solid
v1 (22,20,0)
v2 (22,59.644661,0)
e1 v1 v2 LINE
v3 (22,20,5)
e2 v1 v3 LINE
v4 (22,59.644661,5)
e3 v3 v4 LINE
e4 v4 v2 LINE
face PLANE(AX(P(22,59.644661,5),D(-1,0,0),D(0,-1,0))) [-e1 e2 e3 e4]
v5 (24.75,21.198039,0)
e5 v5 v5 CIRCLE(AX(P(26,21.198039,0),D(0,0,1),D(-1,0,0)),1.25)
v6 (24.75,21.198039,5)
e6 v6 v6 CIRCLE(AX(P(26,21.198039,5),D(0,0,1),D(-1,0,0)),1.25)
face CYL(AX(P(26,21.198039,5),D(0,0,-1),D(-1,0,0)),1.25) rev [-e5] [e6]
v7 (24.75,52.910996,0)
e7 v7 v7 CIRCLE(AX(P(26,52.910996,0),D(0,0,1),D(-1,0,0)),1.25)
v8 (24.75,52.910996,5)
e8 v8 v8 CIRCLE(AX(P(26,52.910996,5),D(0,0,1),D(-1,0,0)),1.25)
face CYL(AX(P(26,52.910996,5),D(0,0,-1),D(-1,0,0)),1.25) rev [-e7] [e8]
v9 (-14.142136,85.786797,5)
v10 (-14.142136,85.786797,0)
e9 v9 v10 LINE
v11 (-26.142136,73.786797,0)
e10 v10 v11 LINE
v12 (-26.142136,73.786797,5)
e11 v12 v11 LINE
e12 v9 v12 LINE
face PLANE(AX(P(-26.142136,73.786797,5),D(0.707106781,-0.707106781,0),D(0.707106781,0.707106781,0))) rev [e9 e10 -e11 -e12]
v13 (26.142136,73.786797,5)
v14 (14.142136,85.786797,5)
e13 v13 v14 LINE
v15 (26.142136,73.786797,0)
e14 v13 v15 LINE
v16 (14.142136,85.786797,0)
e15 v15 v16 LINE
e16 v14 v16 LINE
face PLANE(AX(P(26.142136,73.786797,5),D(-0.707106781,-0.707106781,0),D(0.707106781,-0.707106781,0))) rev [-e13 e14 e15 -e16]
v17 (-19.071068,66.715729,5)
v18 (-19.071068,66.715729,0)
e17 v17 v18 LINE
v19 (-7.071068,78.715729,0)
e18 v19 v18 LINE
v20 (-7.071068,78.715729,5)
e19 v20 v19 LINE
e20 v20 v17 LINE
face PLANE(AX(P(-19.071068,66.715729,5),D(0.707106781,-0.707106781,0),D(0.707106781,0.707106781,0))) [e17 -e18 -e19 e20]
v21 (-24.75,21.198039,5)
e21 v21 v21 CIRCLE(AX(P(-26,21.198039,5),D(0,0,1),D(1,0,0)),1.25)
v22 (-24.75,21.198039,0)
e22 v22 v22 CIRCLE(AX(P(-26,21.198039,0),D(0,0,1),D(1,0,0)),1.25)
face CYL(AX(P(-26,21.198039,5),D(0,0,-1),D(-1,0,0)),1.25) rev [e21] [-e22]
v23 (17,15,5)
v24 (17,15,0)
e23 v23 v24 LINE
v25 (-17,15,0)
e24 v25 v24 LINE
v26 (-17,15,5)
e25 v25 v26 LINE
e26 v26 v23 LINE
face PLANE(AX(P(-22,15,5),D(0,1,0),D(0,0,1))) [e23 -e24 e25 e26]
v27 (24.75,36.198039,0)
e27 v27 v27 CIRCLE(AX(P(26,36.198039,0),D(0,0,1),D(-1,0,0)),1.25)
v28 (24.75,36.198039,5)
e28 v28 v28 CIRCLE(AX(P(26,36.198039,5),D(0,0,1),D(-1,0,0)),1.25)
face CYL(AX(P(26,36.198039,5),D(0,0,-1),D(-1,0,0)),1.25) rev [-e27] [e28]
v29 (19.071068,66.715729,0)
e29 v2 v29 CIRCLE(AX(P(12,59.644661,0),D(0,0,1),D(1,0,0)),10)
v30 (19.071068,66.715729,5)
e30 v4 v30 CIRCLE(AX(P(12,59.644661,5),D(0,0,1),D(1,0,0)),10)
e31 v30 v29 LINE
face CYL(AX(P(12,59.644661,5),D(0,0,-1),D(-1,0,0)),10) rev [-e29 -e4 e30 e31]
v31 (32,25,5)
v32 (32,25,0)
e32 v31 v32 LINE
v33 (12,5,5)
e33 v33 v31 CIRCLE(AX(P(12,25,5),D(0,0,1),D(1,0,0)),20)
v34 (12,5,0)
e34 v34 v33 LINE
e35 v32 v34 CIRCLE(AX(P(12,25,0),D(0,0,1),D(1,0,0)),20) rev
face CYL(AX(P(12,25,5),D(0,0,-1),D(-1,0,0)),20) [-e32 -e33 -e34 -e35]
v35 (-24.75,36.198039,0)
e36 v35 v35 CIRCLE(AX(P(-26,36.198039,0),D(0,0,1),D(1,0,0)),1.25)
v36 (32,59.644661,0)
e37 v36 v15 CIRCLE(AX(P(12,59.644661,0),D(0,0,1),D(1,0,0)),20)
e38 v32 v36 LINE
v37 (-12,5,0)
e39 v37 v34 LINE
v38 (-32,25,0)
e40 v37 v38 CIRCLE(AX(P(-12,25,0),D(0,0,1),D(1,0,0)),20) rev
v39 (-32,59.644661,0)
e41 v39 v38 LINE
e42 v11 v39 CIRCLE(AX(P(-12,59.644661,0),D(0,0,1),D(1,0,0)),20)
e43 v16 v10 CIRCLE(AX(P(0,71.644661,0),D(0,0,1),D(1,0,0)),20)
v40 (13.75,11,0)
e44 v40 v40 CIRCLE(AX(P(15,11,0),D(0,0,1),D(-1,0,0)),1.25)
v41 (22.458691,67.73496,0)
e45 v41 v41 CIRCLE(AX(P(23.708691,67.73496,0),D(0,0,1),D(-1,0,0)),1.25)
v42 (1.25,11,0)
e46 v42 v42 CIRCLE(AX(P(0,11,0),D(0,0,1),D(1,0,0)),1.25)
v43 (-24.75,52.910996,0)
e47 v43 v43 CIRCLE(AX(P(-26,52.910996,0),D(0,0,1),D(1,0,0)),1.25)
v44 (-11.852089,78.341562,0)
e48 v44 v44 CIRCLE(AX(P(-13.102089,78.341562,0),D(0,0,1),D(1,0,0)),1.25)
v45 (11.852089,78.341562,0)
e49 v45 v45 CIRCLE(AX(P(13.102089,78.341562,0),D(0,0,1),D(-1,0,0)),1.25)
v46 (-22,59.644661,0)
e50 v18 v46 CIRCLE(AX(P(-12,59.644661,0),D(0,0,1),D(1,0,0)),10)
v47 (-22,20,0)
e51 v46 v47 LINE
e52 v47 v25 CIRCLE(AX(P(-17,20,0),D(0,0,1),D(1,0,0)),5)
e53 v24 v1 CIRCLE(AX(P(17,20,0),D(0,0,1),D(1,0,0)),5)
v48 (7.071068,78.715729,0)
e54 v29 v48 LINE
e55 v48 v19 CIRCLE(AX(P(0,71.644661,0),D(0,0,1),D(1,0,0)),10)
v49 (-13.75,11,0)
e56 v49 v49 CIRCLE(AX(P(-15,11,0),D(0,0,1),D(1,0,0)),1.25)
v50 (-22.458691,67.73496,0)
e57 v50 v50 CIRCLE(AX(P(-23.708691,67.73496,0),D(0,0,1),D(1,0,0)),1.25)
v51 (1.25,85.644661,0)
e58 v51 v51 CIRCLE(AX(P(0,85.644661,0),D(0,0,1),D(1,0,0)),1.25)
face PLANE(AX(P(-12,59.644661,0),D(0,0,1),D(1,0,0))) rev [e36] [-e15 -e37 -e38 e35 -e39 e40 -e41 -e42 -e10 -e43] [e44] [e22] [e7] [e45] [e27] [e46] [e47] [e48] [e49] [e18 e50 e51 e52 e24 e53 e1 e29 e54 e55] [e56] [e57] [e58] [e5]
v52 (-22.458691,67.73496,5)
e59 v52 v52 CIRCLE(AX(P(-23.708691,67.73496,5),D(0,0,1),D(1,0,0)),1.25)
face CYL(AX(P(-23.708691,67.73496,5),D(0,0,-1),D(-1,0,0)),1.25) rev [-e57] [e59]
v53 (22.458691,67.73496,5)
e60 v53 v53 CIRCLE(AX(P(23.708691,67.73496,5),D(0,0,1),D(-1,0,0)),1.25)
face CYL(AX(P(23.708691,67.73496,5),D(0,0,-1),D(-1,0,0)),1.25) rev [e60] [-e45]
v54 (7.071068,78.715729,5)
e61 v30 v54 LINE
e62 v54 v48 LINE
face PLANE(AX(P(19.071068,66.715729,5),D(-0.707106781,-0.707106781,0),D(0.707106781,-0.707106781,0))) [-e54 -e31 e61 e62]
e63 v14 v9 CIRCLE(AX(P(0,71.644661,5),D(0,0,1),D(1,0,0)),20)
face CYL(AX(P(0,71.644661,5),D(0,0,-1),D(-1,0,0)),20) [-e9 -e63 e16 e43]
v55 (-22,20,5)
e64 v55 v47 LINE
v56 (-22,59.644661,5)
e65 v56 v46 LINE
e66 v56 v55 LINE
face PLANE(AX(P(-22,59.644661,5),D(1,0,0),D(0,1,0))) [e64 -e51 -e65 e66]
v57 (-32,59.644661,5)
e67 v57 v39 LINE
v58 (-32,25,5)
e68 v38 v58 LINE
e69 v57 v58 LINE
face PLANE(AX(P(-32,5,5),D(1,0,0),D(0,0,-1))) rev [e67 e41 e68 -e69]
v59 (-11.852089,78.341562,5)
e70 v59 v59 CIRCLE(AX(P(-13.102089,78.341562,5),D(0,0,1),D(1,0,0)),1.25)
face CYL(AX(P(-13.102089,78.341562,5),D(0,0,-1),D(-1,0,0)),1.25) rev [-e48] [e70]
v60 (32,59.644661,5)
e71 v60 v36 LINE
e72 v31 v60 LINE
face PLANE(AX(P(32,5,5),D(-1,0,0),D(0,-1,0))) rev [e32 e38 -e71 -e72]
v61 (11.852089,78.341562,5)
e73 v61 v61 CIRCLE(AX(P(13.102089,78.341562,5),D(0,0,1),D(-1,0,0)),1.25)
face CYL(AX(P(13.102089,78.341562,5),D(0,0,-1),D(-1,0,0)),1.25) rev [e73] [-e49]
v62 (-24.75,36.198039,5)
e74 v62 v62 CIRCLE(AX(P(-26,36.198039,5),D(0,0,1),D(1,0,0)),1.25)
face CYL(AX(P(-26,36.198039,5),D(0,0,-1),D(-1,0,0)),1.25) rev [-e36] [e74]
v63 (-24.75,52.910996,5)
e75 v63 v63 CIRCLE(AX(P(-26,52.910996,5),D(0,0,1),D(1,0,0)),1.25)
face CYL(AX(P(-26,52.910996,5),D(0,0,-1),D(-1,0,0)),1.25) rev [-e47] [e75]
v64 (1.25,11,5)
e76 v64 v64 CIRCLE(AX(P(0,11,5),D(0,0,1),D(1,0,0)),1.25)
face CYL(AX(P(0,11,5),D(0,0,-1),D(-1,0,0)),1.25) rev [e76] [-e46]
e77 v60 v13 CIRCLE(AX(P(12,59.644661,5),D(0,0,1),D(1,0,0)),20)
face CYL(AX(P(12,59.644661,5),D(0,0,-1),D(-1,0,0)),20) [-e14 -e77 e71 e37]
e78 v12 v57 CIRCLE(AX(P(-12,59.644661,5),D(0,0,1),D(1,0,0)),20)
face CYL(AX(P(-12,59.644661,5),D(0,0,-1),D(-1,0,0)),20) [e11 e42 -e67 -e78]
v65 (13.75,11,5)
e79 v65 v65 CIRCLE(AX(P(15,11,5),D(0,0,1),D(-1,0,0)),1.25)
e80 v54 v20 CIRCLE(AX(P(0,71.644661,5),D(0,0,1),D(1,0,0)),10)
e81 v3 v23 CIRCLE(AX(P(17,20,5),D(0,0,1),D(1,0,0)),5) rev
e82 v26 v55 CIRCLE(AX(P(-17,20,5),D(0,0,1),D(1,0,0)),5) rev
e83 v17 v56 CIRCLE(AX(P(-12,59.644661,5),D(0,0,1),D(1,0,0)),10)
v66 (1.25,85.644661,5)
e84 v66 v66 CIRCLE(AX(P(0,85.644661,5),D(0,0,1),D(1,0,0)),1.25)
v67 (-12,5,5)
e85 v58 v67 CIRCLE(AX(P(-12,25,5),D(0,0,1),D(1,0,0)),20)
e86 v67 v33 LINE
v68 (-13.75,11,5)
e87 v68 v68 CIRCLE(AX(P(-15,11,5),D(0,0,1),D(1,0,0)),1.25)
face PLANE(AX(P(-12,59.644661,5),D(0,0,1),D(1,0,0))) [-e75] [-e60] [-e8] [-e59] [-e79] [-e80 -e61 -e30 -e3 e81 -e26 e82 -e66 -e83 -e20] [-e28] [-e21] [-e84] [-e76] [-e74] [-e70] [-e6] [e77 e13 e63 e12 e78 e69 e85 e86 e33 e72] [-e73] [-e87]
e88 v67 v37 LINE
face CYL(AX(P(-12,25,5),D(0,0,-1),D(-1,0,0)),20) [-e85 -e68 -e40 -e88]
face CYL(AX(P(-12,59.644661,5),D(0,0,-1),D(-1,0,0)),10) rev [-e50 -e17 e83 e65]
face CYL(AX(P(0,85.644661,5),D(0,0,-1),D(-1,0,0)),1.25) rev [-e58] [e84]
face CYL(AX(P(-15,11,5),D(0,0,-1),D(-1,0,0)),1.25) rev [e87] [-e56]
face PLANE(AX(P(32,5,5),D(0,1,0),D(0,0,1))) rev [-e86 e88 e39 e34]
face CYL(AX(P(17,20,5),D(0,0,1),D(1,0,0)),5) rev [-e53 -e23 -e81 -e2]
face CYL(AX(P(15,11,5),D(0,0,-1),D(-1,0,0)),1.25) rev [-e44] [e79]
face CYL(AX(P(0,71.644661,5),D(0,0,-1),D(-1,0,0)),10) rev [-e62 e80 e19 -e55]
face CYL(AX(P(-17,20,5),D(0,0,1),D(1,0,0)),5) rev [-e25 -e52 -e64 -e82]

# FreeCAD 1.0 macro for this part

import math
import FreeCAD as App
import Part
import Sketcher


def edges_at(feature, points):
    """Names of the edges that pass closest to the given points."""
    edges = feature.Shape.Edges
    near = lambda p: min(range(len(edges)), key=lambda i: edges[i].distToShape(Part.Vertex(*p))[0])
    return sorted({f"Edge{near(p) + 1}" for p in points})

doc = App.newDocument("Part")
body = doc.addObject("PartDesign::Body", "Body")

# Sketch on XY plane
sketch1 = body.newObject("Sketcher::SketchObject", "Sketch")
sketch1.AttachmentSupport = (doc.getObject("XY_Plane"), [""])
sketch1.MapMode = "FlatFace"
sketch1.addGeometry(Part.LineSegment(App.Vector(-32, 5, 0), App.Vector(32, 5, 0)), False)
sketch1.addGeometry(Part.LineSegment(App.Vector(32, 5, 0), App.Vector(32, 59.6, 0)), False)
sketch1.addGeometry(Part.ArcOfCircle(Part.Circle(App.Vector(12, 59.6, 0), App.Vector(0, 0, 1), 20), math.radians(0), math.radians(45)), False)
sketch1.addGeometry(Part.LineSegment(App.Vector(26.1, 73.8, 0), App.Vector(14.1, 85.8, 0)), False)
sketch1.addGeometry(Part.ArcOfCircle(Part.Circle(App.Vector(0, 71.6, 0), App.Vector(0, 0, 1), 20), math.radians(45), math.radians(135)), False)
sketch1.addGeometry(Part.LineSegment(App.Vector(-14.1, 85.8, 0), App.Vector(-26.1, 73.8, 0)), False)
sketch1.addGeometry(Part.ArcOfCircle(Part.Circle(App.Vector(-12, 59.6, 0), App.Vector(0, 0, 1), 20), math.radians(135), math.radians(180)), False)
sketch1.addGeometry(Part.LineSegment(App.Vector(-32, 59.6, 0), App.Vector(-32, 5, 0)), False)
sketch1.addGeometry(Part.Circle(App.Vector(15, 11, 0), App.Vector(0, 0, 1), 1.2), False)
sketch1.addGeometry(Part.Circle(App.Vector(26, 21.2, 0), App.Vector(0, 0, 1), 1.2), False)
sketch1.addGeometry(Part.Circle(App.Vector(26, 36.2, 0), App.Vector(0, 0, 1), 1.2), False)
sketch1.addGeometry(Part.Circle(App.Vector(0, 11, 0), App.Vector(0, 0, 1), 1.2), False)
sketch1.addGeometry(Part.Circle(App.Vector(-15, 11, 0), App.Vector(0, 0, 1), 1.2), False)
sketch1.addGeometry(Part.Circle(App.Vector(-26, 21.2, 0), App.Vector(0, 0, 1), 1.2), False)
sketch1.addGeometry(Part.Circle(App.Vector(-26, 36.2, 0), App.Vector(0, 0, 1), 1.2), False)
sketch1.addGeometry(Part.Circle(App.Vector(26, 52.9, 0), App.Vector(0, 0, 1), 1.2), False)
sketch1.addGeometry(Part.Circle(App.Vector(23.7, 67.7, 0), App.Vector(0, 0, 1), 1.2), False)
sketch1.addGeometry(Part.Circle(App.Vector(13.1, 78.3, 0), App.Vector(0, 0, 1), 1.2), False)
sketch1.addGeometry(Part.ArcOfCircle(Part.Circle(App.Vector(-12, 59.6, 0), App.Vector(0, 0, 1), 10), math.radians(135), math.radians(180)), False)
sketch1.addGeometry(Part.LineSegment(App.Vector(-19.1, 66.7, 0), App.Vector(-7.1, 78.7, 0)), False)
sketch1.addGeometry(Part.ArcOfCircle(Part.Circle(App.Vector(0, 71.6, 0), App.Vector(0, 0, 1), 10), math.radians(45), math.radians(135)), False)
sketch1.addGeometry(Part.LineSegment(App.Vector(7.1, 78.7, 0), App.Vector(19.1, 66.7, 0)), False)
sketch1.addGeometry(Part.ArcOfCircle(Part.Circle(App.Vector(12, 59.6, 0), App.Vector(0, 0, 1), 10), math.radians(0), math.radians(45)), False)
sketch1.addGeometry(Part.LineSegment(App.Vector(22, 59.6, 0), App.Vector(22, 15, 0)), False)
sketch1.addGeometry(Part.LineSegment(App.Vector(22, 15, 0), App.Vector(-22, 15, 0)), False)
sketch1.addGeometry(Part.LineSegment(App.Vector(-22, 15, 0), App.Vector(-22, 59.6, 0)), False)
sketch1.addGeometry(Part.Circle(App.Vector(-26, 52.9, 0), App.Vector(0, 0, 1), 1.2), False)
sketch1.addGeometry(Part.Circle(App.Vector(0, 85.6, 0), App.Vector(0, 0, 1), 1.2), False)
sketch1.addGeometry(Part.Circle(App.Vector(-13.1, 78.3, 0), App.Vector(0, 0, 1), 1.2), False)
sketch1.addGeometry(Part.Circle(App.Vector(-23.7, 67.7, 0), App.Vector(0, 0, 1), 1.2), False)
sketch1.addConstraint(Sketcher.Constraint("Coincident", 0, 2, 1, 1))
sketch1.addConstraint(Sketcher.Constraint("Tangent", 1, 2, 2, 1))
sketch1.addConstraint(Sketcher.Constraint("Tangent", 2, 2, 3, 1))
sketch1.addConstraint(Sketcher.Constraint("Tangent", 3, 2, 4, 1))
sketch1.addConstraint(Sketcher.Constraint("Tangent", 4, 2, 5, 1))
sketch1.addConstraint(Sketcher.Constraint("Tangent", 5, 2, 6, 1))
sketch1.addConstraint(Sketcher.Constraint("Tangent", 6, 2, 7, 1))
sketch1.addConstraint(Sketcher.Constraint("Coincident", 7, 2, 0, 1))
sketch1.addConstraint(Sketcher.Constraint("Tangent", 18, 1, 19, 1))
sketch1.addConstraint(Sketcher.Constraint("Tangent", 19, 2, 20, 2))
sketch1.addConstraint(Sketcher.Constraint("Tangent", 20, 1, 21, 1))
sketch1.addConstraint(Sketcher.Constraint("Tangent", 21, 2, 22, 2))
sketch1.addConstraint(Sketcher.Constraint("Tangent", 22, 1, 23, 1))
sketch1.addConstraint(Sketcher.Constraint("Coincident", 23, 2, 24, 1))
sketch1.addConstraint(Sketcher.Constraint("Coincident", 24, 2, 25, 1))
sketch1.addConstraint(Sketcher.Constraint("Tangent", 25, 2, 18, 2))
sketch1.addConstraint(Sketcher.Constraint("Horizontal", 0))
sketch1.addConstraint(Sketcher.Constraint("Vertical", 1))
sketch1.addConstraint(Sketcher.Constraint("Vertical", 7))
sketch1.addConstraint(Sketcher.Constraint("Vertical", 23))
sketch1.addConstraint(Sketcher.Constraint("Horizontal", 24))
sketch1.addConstraint(Sketcher.Constraint("Vertical", 25))
sketch1.addConstraint(Sketcher.Constraint("Coincident", 18, 3, 6, 3))
sketch1.addConstraint(Sketcher.Constraint("Coincident", 20, 3, 4, 3))
sketch1.addConstraint(Sketcher.Constraint("Coincident", 22, 3, 2, 3))
sketch1.addConstraint(Sketcher.Constraint("Equal", 2, 4))
sketch1.addConstraint(Sketcher.Constraint("Equal", 4, 6))
sketch1.addConstraint(Sketcher.Constraint("Equal", 8, 9))
sketch1.addConstraint(Sketcher.Constraint("Equal", 9, 10))
sketch1.addConstraint(Sketcher.Constraint("Equal", 10, 11))
sketch1.addConstraint(Sketcher.Constraint("Equal", 11, 12))
sketch1.addConstraint(Sketcher.Constraint("Equal", 12, 13))
sketch1.addConstraint(Sketcher.Constraint("Equal", 13, 14))
sketch1.addConstraint(Sketcher.Constraint("Equal", 14, 15))
sketch1.addConstraint(Sketcher.Constraint("Equal", 15, 16))
sketch1.addConstraint(Sketcher.Constraint("Equal", 16, 17))
sketch1.addConstraint(Sketcher.Constraint("Equal", 18, 20))
sketch1.addConstraint(Sketcher.Constraint("Equal", 20, 22))
sketch1.addConstraint(Sketcher.Constraint("Equal", 17, 26))
sketch1.addConstraint(Sketcher.Constraint("Equal", 26, 27))
sketch1.addConstraint(Sketcher.Constraint("Equal", 27, 28))
sketch1.addConstraint(Sketcher.Constraint("Equal", 28, 29))
sketch1.addConstraint(Sketcher.Constraint("Symmetric", 2, 3, 6, 3, -2))
sketch1.addConstraint(Sketcher.Constraint("Symmetric", 8, 3, 12, 3, -2))
sketch1.addConstraint(Sketcher.Constraint("Symmetric", 9, 3, 13, 3, -2))
sketch1.addConstraint(Sketcher.Constraint("Symmetric", 10, 3, 14, 3, -2))
sketch1.addConstraint(Sketcher.Constraint("Symmetric", 15, 3, 26, 3, -2))
sketch1.addConstraint(Sketcher.Constraint("Symmetric", 17, 3, 28, 3, -2))
sketch1.addConstraint(Sketcher.Constraint("Symmetric", 16, 3, 29, 3, -2))
sketch1.addConstraint(Sketcher.Constraint("PointOnObject", 4, 3, -2))
sketch1.addConstraint(Sketcher.Constraint("PointOnObject", 11, 3, -2))
sketch1.addConstraint(Sketcher.Constraint("PointOnObject", 27, 3, -2))
sketch1.addConstraint(Sketcher.Constraint("Perpendicular", 3, 5))
sketch1.addConstraint(Sketcher.Constraint("Horizontal", 8, 3, 11, 3))
sketch1.addConstraint(Sketcher.Constraint("Vertical", 9, 3, 10, 3))
sketch1.addConstraint(Sketcher.Constraint("Vertical", 10, 3, 15, 3))
sketch1.addConstraint(Sketcher.Constraint("Radius", 2, 20.0))
sketch1.addConstraint(Sketcher.Constraint("Radius", 18, 10.0))
sketch1.addConstraint(Sketcher.Constraint("Diameter", 8, 2.5))
sketch1.addConstraint(Sketcher.Constraint("DistanceX", 0, 1, 0, 2, 64.0))
sketch1.addConstraint(Sketcher.Constraint("DistanceX", -1, 1, 8, 3, 15.0))
sketch1.addConstraint(Sketcher.Constraint("DistanceY", -1, 1, 8, 3, 11.0))
sketch1.addConstraint(Sketcher.Constraint("DistanceX", -1, 1, 9, 3, 26.0))
sketch1.addConstraint(Sketcher.Constraint("DistanceY", -1, 1, 0, 2, 5.0))
sketch1.addConstraint(Sketcher.Constraint("DistanceY", -1, 1, 23, 2, 15.0))
sketch1.addConstraint(Sketcher.Constraint("DistanceY", 9, 3, 10, 3, 15.0))
sketch1.addConstraint(Sketcher.Constraint("DistanceY", 4, 3, 27, 3, 14.0))
sketch1.addConstraint(Sketcher.Constraint("DistanceY", 1, 1, 1, 2, 54.644661))
sketch1.addConstraint(Sketcher.Constraint("DistanceY", 2, 3, 16, 3, 8.090299))
sketch1.addConstraint(Sketcher.Constraint("DistanceY", 4, 3, 17, 3, 6.696901))
sketch1.addConstraint(Sketcher.Constraint("DistanceX", 17, 3, 16, 3, 10.606602))
sketch1.addConstraint(Sketcher.Constraint("DistanceY", -1, 1, 9, 3, 21.198039))
sketch1.addConstraint(Sketcher.Constraint("DistanceX", -1, 1, 16, 3, 23.708691))
sketch1.addConstraint(Sketcher.Constraint("DistanceY", -1, 1, 15, 3, 52.910996))
pad1 = body.newObject("PartDesign::Pad", "Pad")
pad1.Profile = sketch1
pad1.Length = 5
doc.recompute()

fillet = body.newObject("PartDesign::Fillet", "Fillet")
fillet.Base = (pad1, edges_at(pad1, [(32, 5, 2.5), (-32, 5, 2.5)]))
fillet.Radius = 20
doc.recompute()

fillet2 = body.newObject("PartDesign::Fillet", "Fillet001")
fillet2.Base = (fillet, edges_at(fillet, [(22, 15, 2.5), (-22, 15, 2.5)]))
fillet2.Radius = 5

doc.recompute()
